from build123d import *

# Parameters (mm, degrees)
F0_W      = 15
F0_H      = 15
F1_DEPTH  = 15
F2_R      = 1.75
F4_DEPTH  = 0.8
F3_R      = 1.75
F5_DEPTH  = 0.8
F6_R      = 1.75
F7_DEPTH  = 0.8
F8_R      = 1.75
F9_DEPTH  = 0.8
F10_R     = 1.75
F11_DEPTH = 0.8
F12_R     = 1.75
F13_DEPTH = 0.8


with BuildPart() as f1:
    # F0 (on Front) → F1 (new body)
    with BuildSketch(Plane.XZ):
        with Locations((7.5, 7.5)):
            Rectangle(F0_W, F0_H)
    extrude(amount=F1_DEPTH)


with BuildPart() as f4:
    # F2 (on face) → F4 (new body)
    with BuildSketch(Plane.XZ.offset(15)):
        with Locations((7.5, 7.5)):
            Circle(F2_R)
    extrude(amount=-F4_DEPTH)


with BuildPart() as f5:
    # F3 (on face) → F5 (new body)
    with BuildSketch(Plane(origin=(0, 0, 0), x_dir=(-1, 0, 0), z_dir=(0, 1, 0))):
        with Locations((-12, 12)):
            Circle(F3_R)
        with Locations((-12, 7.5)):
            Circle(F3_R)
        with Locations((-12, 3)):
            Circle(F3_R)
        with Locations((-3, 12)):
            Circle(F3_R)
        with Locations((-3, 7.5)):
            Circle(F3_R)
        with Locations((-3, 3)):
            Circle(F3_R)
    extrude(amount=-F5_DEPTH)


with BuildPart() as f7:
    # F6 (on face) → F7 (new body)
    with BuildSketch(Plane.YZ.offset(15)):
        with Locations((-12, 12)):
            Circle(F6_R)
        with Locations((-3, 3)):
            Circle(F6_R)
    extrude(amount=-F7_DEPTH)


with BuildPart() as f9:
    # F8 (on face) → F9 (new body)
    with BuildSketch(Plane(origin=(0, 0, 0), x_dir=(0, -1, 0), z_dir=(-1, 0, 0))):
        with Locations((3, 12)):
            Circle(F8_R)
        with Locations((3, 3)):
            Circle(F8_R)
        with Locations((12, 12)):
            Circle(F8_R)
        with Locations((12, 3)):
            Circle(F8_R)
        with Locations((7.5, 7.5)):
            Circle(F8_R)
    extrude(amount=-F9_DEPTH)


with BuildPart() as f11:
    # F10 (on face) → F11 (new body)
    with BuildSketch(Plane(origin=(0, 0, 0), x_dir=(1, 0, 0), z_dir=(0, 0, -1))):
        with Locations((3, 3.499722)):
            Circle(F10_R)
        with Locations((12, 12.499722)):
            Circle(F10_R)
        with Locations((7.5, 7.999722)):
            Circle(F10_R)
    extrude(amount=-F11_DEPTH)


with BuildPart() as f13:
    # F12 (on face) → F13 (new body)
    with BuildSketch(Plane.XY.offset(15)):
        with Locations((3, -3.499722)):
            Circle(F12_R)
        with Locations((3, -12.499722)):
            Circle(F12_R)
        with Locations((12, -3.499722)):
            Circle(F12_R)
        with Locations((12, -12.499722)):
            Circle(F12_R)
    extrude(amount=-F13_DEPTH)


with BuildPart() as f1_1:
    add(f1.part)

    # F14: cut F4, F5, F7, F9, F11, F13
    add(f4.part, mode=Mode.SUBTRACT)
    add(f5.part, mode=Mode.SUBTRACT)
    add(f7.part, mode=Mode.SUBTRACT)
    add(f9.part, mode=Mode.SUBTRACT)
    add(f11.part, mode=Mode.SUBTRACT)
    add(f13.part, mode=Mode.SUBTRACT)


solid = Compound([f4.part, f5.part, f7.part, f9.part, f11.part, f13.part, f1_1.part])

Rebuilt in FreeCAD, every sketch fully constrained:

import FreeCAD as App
import Part
import Sketcher

V = App.Vector


def add_polygon(sketch, points):
    """Adds a closed chain of lines whose ends are joined by coincident constraints."""
    first, n = sketch.GeometryCount, len(points)
    for a, b in zip(points, points[1:] + points[:1]):
        sketch.addGeometry(Part.LineSegment(App.Vector(*a, 0), App.Vector(*b, 0)), False)
    for i in range(n):
        sketch.addConstraint(Sketcher.Constraint("Coincident", first + i, 2, first + (i + 1) % n, 1))

doc = App.newDocument("Part")
body = doc.addObject("PartDesign::Body", "Body")

# Sketch on XZ plane
sketch1 = doc.addObject("Sketcher::SketchObject", "Sketch")
body.addObject(sketch1)
sketch1.AttachmentSupport = (doc.XZ_Plane, [""])
sketch1.MapMode = "FlatFace"
add_polygon(sketch1, [(0, 15), (0, 0), (15, 0), (15, 15)])  # lines 0-3
sketch1.addConstraint([
    Sketcher.Constraint("Vertical", 0),
    Sketcher.Constraint("Horizontal", 1),
    Sketcher.Constraint("Vertical", 2),
    Sketcher.Constraint("Horizontal", 3),
    Sketcher.Constraint("Coincident", 0, 2, -1, 1),
    Sketcher.Constraint("Equal", 3, 0),
    Sketcher.Constraint("DistanceX", 1, 1, 1, 2, 15.0),
])
pad1 = doc.addObject("PartDesign::Pad", "Pad")
body.addObject(pad1)
pad1.Profile = sketch1
pad1.Length = 15
body2 = doc.addObject("PartDesign::Body", "Body001")

# Sketch on XZ plane
sketch2 = doc.addObject("Sketcher::SketchObject", "Sketch001")
body2.addObject(sketch2)
sketch2.AttachmentSupport = (doc.getObject("XZ_Plane001"), [""])
sketch2.MapMode = "FlatFace"
sketch2.AttachmentOffset = App.Placement(V(0, 0, 15), App.Rotation())
sketch2.addGeometry(Part.Circle(V(7.5, 7.5, 0), V(0, 0, 1), 1.75), False)
sketch2.addConstraint([
    Sketcher.Constraint("Diameter", 0, 3.5),
    Sketcher.Constraint("DistanceX", -1, 1, 0, 3, 7.5),
    Sketcher.Constraint("DistanceY", -1, 1, 0, 3, 7.5),
])
pad2 = doc.addObject("PartDesign::Pad", "Pad001")
body2.addObject(pad2)
pad2.Profile = sketch2
pad2.Length = 0.8
pad2.Reversed = True
body3 = doc.addObject("PartDesign::Body", "Body002")
body3.AllowCompound = True

# Sketch on XZ plane
sketch3 = doc.addObject("Sketcher::SketchObject", "Sketch002")
body3.addObject(sketch3)
sketch3.AttachmentSupport = (doc.getObject("XZ_Plane002"), [""])
sketch3.MapMode = "FlatFace"
sketch3.addGeometry([
    Part.Circle(V(12, 12, 0), V(0, 0, 1), 1.75),  # 0
    Part.Circle(V(12, 7.5, 0), V(0, 0, 1), 1.75),  # 1
    Part.Circle(V(12, 3, 0), V(0, 0, 1), 1.75),  # 2
    Part.Circle(V(3, 12, 0), V(0, 0, 1), 1.75),  # 3
    Part.Circle(V(3, 7.5, 0), V(0, 0, 1), 1.75),  # 4
    Part.Circle(V(3, 3, 0), V(0, 0, 1), 1.75),  # 5
], False)
sketch3.addConstraint([
    Sketcher.Constraint("Equal", 0, 1),
    Sketcher.Constraint("Equal", 1, 2),
    Sketcher.Constraint("Equal", 2, 3),
    Sketcher.Constraint("Equal", 3, 4),
    Sketcher.Constraint("Equal", 4, 5),
    Sketcher.Constraint("Horizontal", 0, 3, 3, 3),
    Sketcher.Constraint("Horizontal", 1, 3, 4, 3),
    Sketcher.Constraint("Horizontal", 2, 3, 5, 3),
    Sketcher.Constraint("Vertical", 0, 3, 1, 3),
    Sketcher.Constraint("Vertical", 1, 3, 2, 3),
    Sketcher.Constraint("Vertical", 3, 3, 4, 3),
    Sketcher.Constraint("Vertical", 4, 3, 5, 3),
    Sketcher.Constraint("Diameter", 0, 3.5),
    Sketcher.Constraint("DistanceX", -1, 1, 0, 3, 12.0),
    Sketcher.Constraint("DistanceY", -1, 1, 0, 3, 12.0),
    Sketcher.Constraint("DistanceY", -1, 1, 2, 3, 3.0),
    Sketcher.Constraint("DistanceX", -1, 1, 3, 3, 3.0),
    Sketcher.Constraint("DistanceY", -1, 1, 1, 3, 7.5),
])
pad3 = doc.addObject("PartDesign::Pad", "Pad002")
body3.addObject(pad3)
pad3.Profile = sketch3
pad3.Length = 0.8
body4 = doc.addObject("PartDesign::Body", "Body003")
body4.AllowCompound = True

# Sketch on YZ plane
sketch4 = doc.addObject("Sketcher::SketchObject", "Sketch003")
body4.addObject(sketch4)
sketch4.AttachmentSupport = (doc.getObject("YZ_Plane003"), [""])
sketch4.MapMode = "FlatFace"
sketch4.AttachmentOffset = App.Placement(V(0, 0, 15), App.Rotation())
sketch4.addGeometry([
    Part.Circle(V(-12, 12, 0), V(0, 0, 1), 1.75),
    Part.Circle(V(-3, 3, 0), V(0, 0, 1), 1.75),
], False)
sketch4.addConstraint([
    Sketcher.Constraint("Equal", 0, 1),
    Sketcher.Constraint("Diameter", 0, 3.5),
    Sketcher.Constraint("DistanceX", 0, 3, -1, 1, 12.0),
    Sketcher.Constraint("DistanceY", -1, 1, 0, 3, 12.0),
    Sketcher.Constraint("DistanceX", 1, 3, -1, 1, 3.0),
    Sketcher.Constraint("DistanceY", -1, 1, 1, 3, 3.0),
])
pad4 = doc.addObject("PartDesign::Pad", "Pad003")
body4.addObject(pad4)
pad4.Profile = sketch4
pad4.Length = 0.8
pad4.Reversed = True
body5 = doc.addObject("PartDesign::Body", "Body004")
body5.AllowCompound = True

# Sketch on YZ plane
sketch5 = doc.addObject("Sketcher::SketchObject", "Sketch004")
body5.addObject(sketch5)
sketch5.AttachmentSupport = (doc.getObject("YZ_Plane004"), [""])
sketch5.MapMode = "FlatFace"
sketch5.addGeometry([
    Part.Circle(V(-3, 12, 0), V(0, 0, 1), 1.75),  # 0
    Part.Circle(V(-3, 3, 0), V(0, 0, 1), 1.75),  # 1
    Part.Circle(V(-12, 12, 0), V(0, 0, 1), 1.75),  # 2
    Part.Circle(V(-12, 3, 0), V(0, 0, 1), 1.75),  # 3
    Part.Circle(V(-7.5, 7.5, 0), V(0, 0, 1), 1.75),  # 4
], False)
sketch5.addConstraint([
    Sketcher.Constraint("Equal", 0, 1),
    Sketcher.Constraint("Equal", 1, 2),
    Sketcher.Constraint("Equal", 2, 3),
    Sketcher.Constraint("Equal", 3, 4),
    Sketcher.Constraint("Horizontal", 0, 3, 2, 3),
    Sketcher.Constraint("Horizontal", 1, 3, 3, 3),
    Sketcher.Constraint("Vertical", 0, 3, 1, 3),
    Sketcher.Constraint("Vertical", 2, 3, 3, 3),
    Sketcher.Constraint("Diameter", 0, 3.5),
    Sketcher.Constraint("DistanceX", 0, 3, -1, 1, 3.0),
    Sketcher.Constraint("DistanceY", -1, 1, 0, 3, 12.0),
    Sketcher.Constraint("DistanceY", -1, 1, 1, 3, 3.0),
    Sketcher.Constraint("DistanceX", 2, 3, -1, 1, 12.0),
    Sketcher.Constraint("DistanceX", 4, 3, -1, 1, 7.5),
    Sketcher.Constraint("DistanceY", -1, 1, 4, 3, 7.5),
])
pad5 = doc.addObject("PartDesign::Pad", "Pad004")
body5.addObject(pad5)
pad5.Profile = sketch5
pad5.Length = 0.8
body6 = doc.addObject("PartDesign::Body", "Body005")
body6.AllowCompound = True

# Sketch on XY plane
sketch6 = doc.addObject("Sketcher::SketchObject", "Sketch005")
body6.addObject(sketch6)
sketch6.AttachmentSupport = (doc.getObject("XY_Plane005"), [""])
sketch6.MapMode = "FlatFace"
sketch6.addGeometry([
    Part.Circle(V(3, -3.499722, 0), V(0, 0, 1), 1.75),
    Part.Circle(V(12, -12.499722, 0), V(0, 0, 1), 1.75),
    Part.Circle(V(7.5, -7.999722, 0), V(0, 0, 1), 1.75),
], False)
sketch6.addConstraint([
    Sketcher.Constraint("Equal", 0, 1),
    Sketcher.Constraint("Equal", 1, 2),
    Sketcher.Constraint("Diameter", 0, 3.5),
    Sketcher.Constraint("DistanceX", -1, 1, 0, 3, 3.0),
    Sketcher.Constraint("DistanceX", -1, 1, 1, 3, 12.0),
    Sketcher.Constraint("DistanceY", 1, 3, 0, 3, 9.0),
    Sketcher.Constraint("DistanceX", -1, 1, 2, 3, 7.5),
    Sketcher.Constraint("DistanceY", 2, 3, 0, 3, 4.5),
    Sketcher.Constraint("DistanceY", 0, 3, -1, 1, 3.499722),
])
pad6 = doc.addObject("PartDesign::Pad", "Pad005")
body6.addObject(pad6)
pad6.Profile = sketch6
pad6.Length = 0.8
body7 = doc.addObject("PartDesign::Body", "Body006")
body7.AllowCompound = True

# Sketch on XY plane
sketch7 = doc.addObject("Sketcher::SketchObject", "Sketch006")
body7.addObject(sketch7)
sketch7.AttachmentSupport = (doc.getObject("XY_Plane006"), [""])
sketch7.MapMode = "FlatFace"
sketch7.AttachmentOffset = App.Placement(V(0, 0, 15), App.Rotation())
sketch7.addGeometry([
    Part.Circle(V(3, -3.499722, 0), V(0, 0, 1), 1.75),
    Part.Circle(V(3, -12.499722, 0), V(0, 0, 1), 1.75),
    Part.Circle(V(12, -3.499722, 0), V(0, 0, 1), 1.75),
    Part.Circle(V(12, -12.499722, 0), V(0, 0, 1), 1.75),
], False)
sketch7.addConstraint([
    Sketcher.Constraint("Equal", 0, 1),
    Sketcher.Constraint("Equal", 1, 2),
    Sketcher.Constraint("Equal", 2, 3),
    Sketcher.Constraint("Horizontal", 0, 3, 2, 3),
    Sketcher.Constraint("Horizontal", 1, 3, 3, 3),
    Sketcher.Constraint("Vertical", 0, 3, 1, 3),
    Sketcher.Constraint("Vertical", 2, 3, 3, 3),
    Sketcher.Constraint("Diameter", 0, 3.5),
    Sketcher.Constraint("DistanceX", -1, 1, 0, 3, 3.0),
    Sketcher.Constraint("DistanceX", -1, 1, 2, 3, 12.0),
    Sketcher.Constraint("DistanceY", 1, 3, 0, 3, 9.0),
    Sketcher.Constraint("DistanceY", 0, 3, -1, 1, 3.499722),
])
pad7 = doc.addObject("PartDesign::Pad", "Pad006")
body7.addObject(pad7)
pad7.Profile = sketch7
pad7.Length = 0.8
pad7.Reversed = True
doc.recompute()

body8 = doc.addObject("PartDesign::Body", "Body007")
body8.BaseFeature = body2
boolean = doc.addObject("PartDesign::Boolean", "Boolean")
body.addObject(boolean)
boolean.Type = "Cut"
boolean.addObjects([body8])
doc.recompute()

body9 = doc.addObject("PartDesign::Body", "Body008")
body9.BaseFeature = body3
boolean2 = doc.addObject("PartDesign::Boolean", "Boolean001")
body.addObject(boolean2)
boolean2.Type = "Cut"
boolean2.addObjects([body9])
doc.recompute()

body10 = doc.addObject("PartDesign::Body", "Body009")
body10.BaseFeature = body4
boolean3 = doc.addObject("PartDesign::Boolean", "Boolean002")
body.addObject(boolean3)
boolean3.Type = "Cut"
boolean3.addObjects([body10])
doc.recompute()

body11 = doc.addObject("PartDesign::Body", "Body010")
body11.BaseFeature = body5
boolean4 = doc.addObject("PartDesign::Boolean", "Boolean003")
body.addObject(boolean4)
boolean4.Type = "Cut"
boolean4.addObjects([body11])
doc.recompute()

body12 = doc.addObject("PartDesign::Body", "Body011")
body12.BaseFeature = body6
boolean5 = doc.addObject("PartDesign::Boolean", "Boolean004")
body.addObject(boolean5)
boolean5.Type = "Cut"
boolean5.addObjects([body12])
doc.recompute()

body13 = doc.addObject("PartDesign::Body", "Body012")
body13.BaseFeature = body7
boolean6 = doc.addObject("PartDesign::Boolean", "Boolean005")
body.addObject(boolean6)
boolean6.Type = "Cut"
boolean6.addObjects([body13])
doc.recompute()

doc.recompute()
